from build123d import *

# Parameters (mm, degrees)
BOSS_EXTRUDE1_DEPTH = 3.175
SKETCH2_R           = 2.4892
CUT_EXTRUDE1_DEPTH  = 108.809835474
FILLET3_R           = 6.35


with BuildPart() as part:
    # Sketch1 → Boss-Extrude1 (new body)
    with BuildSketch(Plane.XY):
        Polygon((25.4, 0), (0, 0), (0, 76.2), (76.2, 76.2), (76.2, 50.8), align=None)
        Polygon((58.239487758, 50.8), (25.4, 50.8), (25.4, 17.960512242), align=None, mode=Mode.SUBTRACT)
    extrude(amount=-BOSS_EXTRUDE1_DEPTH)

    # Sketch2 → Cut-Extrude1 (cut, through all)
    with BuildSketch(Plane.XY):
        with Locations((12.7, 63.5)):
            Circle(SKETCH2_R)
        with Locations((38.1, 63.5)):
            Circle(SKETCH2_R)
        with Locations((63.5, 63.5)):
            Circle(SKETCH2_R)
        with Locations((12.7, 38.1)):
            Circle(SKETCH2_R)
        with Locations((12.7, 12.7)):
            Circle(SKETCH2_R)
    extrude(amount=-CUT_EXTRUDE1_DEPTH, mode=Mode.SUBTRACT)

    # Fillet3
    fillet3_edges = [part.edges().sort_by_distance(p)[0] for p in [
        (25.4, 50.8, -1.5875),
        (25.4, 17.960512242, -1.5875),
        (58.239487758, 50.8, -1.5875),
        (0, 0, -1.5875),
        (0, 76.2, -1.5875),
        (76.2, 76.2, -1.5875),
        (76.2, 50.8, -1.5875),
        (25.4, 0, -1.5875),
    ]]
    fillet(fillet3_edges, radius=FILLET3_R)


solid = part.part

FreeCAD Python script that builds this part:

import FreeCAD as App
import Part
import Sketcher
Q = App.Units.Quantity


def edges_at(feature, points):
    """Names of the edges that pass closest to the given points."""
    edges = feature.Shape.Edges
    near = lambda p: min(range(len(edges)), key=lambda i: edges[i].distToShape(Part.Vertex(*p))[0])
    return sorted({f"Edge{near(p) + 1}" for p in points})

doc = App.newDocument("Part")
body = doc.addObject("PartDesign::Body", "Body")

# Sketch on XY plane
sketch1 = body.newObject("Sketcher::SketchObject", "Sketch")
sketch1.AttachmentSupport = (doc.getObject("XY_Plane"), [""])
sketch1.MapMode = "FlatFace"
sketch1.addGeometry([
    Part.LineSegment(App.Vector(0, 0, 0), App.Vector(25.4, 0, 0)),  # 0
    Part.LineSegment(App.Vector(25.4, 0, 0), App.Vector(76.2, 50.8, 0)),  # 1
    Part.LineSegment(App.Vector(76.2, 50.8, 0), App.Vector(76.2, 76.2, 0)),  # 2
    Part.LineSegment(App.Vector(76.2, 76.2, 0), App.Vector(0, 76.2, 0)),  # 3
    Part.LineSegment(App.Vector(0, 76.2, 0), App.Vector(0, 0, 0)),  # 4
    Part.LineSegment(App.Vector(58.239488, 50.8, 0), App.Vector(25.4, 17.960512, 0)),  # 5
    Part.LineSegment(App.Vector(25.4, 17.960512, 0), App.Vector(25.4, 50.8, 0)),  # 6
    Part.LineSegment(App.Vector(25.4, 50.8, 0), App.Vector(58.239488, 50.8, 0)),  # 7
], False)
sketch1.addConstraint([
    Sketcher.Constraint("Coincident", 0, 2, 1, 1),
    Sketcher.Constraint("Coincident", 1, 2, 2, 1),
    Sketcher.Constraint("Coincident", 2, 2, 3, 1),
    Sketcher.Constraint("Coincident", 3, 2, 4, 1),
    Sketcher.Constraint("Coincident", 4, 2, 0, 1),
    Sketcher.Constraint("Coincident", 5, 2, 6, 1),
    Sketcher.Constraint("Coincident", 6, 2, 7, 1),
    Sketcher.Constraint("Coincident", 7, 2, 5, 1),
    Sketcher.Constraint("Horizontal", 0),
    Sketcher.Constraint("Vertical", 2),
    Sketcher.Constraint("Horizontal", 3),
    Sketcher.Constraint("Vertical", 4),
    Sketcher.Constraint("Vertical", 6),
    Sketcher.Constraint("Horizontal", 7),
    Sketcher.Constraint("Coincident", 4, 2, -1, 1),
    Sketcher.Constraint("Parallel", 1, 5),
    Sketcher.Constraint("Horizontal", 1, 2, 6, 2),
    Sketcher.Constraint("Vertical", 0, 2, 5, 2),
    Sketcher.Constraint("Equal", 0, 2),
    Sketcher.Constraint("Equal", 3, 4),
    Sketcher.Constraint("DistanceX", 0, 1, 0, 2, Q("1 in")),
    Sketcher.Constraint("DistanceX", 3, 2, 3, 1, Q("3 in")),
    Sketcher.Constraint("Distance", 5, 46.442049),
])
pad1 = body.newObject("PartDesign::Pad", "Pad")
pad1.Profile = sketch1
pad1.Length = Q("0.125 in")
pad1.Reversed = True

# Sketch on XY plane
sketch2 = body.newObject("Sketcher::SketchObject", "Sketch001")
sketch2.AttachmentSupport = (doc.getObject("XY_Plane"), [""])
sketch2.MapMode = "FlatFace"
sketch2.addGeometry([
    Part.Circle(App.Vector(12.7, 63.5, 0), App.Vector(0, 0, 1), 2.4892),  # 0
    Part.Circle(App.Vector(38.1, 63.5, 0), App.Vector(0, 0, 1), 2.4892),  # 1
    Part.Circle(App.Vector(63.5, 63.5, 0), App.Vector(0, 0, 1), 2.4892),  # 2
    Part.Circle(App.Vector(12.7, 38.1, 0), App.Vector(0, 0, 1), 2.4892),  # 3
    Part.Circle(App.Vector(12.7, 12.7, 0), App.Vector(0, 0, 1), 2.4892),  # 4
], False)
sketch2.addConstraint([
    Sketcher.Constraint("Equal", 0, 1),
    Sketcher.Constraint("Equal", 1, 2),
    Sketcher.Constraint("Equal", 2, 3),
    Sketcher.Constraint("Equal", 3, 4),
    Sketcher.Constraint("Horizontal", 0, 3, 1, 3),
    Sketcher.Constraint("Horizontal", 1, 3, 2, 3),
    Sketcher.Constraint("Vertical", 0, 3, 3, 3),
    Sketcher.Constraint("Vertical", 3, 3, 4, 3),
    Sketcher.Constraint("Diameter", 0, Q("0.196 in")),
    Sketcher.Constraint("DistanceX", 0, 3, 1, 3, Q("1 in")),
    Sketcher.Constraint("DistanceX", 1, 3, 2, 3, Q("1 in")),
    Sketcher.Constraint("DistanceY", 3, 3, 0, 3, Q("1 in")),
    Sketcher.Constraint("DistanceY", 4, 3, 3, 3, Q("1 in")),
    Sketcher.Constraint("DistanceX", -1, 1, 0, 3, Q("0.5 in")),
    Sketcher.Constraint("DistanceY", -1, 1, 0, 3, Q("2.5 in")),
])
pocket1 = body.newObject("PartDesign::Pocket", "Pocket")
pocket1.Profile = sketch2
pocket1.Type = "ThroughAll"
doc.recompute()

fillet = body.newObject("PartDesign::Fillet", "Fillet")
fillet.Base = (pocket1, edges_at(pocket1, [
    (25.4, 50.8, -1.587),
    (25.4, 17.961, -1.587),
    (58.239, 50.8, -1.587),
    (0, 0, -1.587),
    (0, 76.2, -1.587),
    (76.2, 76.2, -1.587),
    (76.2, 50.8, -1.587),
    (25.4, 0, -1.587),
]))
fillet.Radius = Q("0.25 in")

doc.recompute()
